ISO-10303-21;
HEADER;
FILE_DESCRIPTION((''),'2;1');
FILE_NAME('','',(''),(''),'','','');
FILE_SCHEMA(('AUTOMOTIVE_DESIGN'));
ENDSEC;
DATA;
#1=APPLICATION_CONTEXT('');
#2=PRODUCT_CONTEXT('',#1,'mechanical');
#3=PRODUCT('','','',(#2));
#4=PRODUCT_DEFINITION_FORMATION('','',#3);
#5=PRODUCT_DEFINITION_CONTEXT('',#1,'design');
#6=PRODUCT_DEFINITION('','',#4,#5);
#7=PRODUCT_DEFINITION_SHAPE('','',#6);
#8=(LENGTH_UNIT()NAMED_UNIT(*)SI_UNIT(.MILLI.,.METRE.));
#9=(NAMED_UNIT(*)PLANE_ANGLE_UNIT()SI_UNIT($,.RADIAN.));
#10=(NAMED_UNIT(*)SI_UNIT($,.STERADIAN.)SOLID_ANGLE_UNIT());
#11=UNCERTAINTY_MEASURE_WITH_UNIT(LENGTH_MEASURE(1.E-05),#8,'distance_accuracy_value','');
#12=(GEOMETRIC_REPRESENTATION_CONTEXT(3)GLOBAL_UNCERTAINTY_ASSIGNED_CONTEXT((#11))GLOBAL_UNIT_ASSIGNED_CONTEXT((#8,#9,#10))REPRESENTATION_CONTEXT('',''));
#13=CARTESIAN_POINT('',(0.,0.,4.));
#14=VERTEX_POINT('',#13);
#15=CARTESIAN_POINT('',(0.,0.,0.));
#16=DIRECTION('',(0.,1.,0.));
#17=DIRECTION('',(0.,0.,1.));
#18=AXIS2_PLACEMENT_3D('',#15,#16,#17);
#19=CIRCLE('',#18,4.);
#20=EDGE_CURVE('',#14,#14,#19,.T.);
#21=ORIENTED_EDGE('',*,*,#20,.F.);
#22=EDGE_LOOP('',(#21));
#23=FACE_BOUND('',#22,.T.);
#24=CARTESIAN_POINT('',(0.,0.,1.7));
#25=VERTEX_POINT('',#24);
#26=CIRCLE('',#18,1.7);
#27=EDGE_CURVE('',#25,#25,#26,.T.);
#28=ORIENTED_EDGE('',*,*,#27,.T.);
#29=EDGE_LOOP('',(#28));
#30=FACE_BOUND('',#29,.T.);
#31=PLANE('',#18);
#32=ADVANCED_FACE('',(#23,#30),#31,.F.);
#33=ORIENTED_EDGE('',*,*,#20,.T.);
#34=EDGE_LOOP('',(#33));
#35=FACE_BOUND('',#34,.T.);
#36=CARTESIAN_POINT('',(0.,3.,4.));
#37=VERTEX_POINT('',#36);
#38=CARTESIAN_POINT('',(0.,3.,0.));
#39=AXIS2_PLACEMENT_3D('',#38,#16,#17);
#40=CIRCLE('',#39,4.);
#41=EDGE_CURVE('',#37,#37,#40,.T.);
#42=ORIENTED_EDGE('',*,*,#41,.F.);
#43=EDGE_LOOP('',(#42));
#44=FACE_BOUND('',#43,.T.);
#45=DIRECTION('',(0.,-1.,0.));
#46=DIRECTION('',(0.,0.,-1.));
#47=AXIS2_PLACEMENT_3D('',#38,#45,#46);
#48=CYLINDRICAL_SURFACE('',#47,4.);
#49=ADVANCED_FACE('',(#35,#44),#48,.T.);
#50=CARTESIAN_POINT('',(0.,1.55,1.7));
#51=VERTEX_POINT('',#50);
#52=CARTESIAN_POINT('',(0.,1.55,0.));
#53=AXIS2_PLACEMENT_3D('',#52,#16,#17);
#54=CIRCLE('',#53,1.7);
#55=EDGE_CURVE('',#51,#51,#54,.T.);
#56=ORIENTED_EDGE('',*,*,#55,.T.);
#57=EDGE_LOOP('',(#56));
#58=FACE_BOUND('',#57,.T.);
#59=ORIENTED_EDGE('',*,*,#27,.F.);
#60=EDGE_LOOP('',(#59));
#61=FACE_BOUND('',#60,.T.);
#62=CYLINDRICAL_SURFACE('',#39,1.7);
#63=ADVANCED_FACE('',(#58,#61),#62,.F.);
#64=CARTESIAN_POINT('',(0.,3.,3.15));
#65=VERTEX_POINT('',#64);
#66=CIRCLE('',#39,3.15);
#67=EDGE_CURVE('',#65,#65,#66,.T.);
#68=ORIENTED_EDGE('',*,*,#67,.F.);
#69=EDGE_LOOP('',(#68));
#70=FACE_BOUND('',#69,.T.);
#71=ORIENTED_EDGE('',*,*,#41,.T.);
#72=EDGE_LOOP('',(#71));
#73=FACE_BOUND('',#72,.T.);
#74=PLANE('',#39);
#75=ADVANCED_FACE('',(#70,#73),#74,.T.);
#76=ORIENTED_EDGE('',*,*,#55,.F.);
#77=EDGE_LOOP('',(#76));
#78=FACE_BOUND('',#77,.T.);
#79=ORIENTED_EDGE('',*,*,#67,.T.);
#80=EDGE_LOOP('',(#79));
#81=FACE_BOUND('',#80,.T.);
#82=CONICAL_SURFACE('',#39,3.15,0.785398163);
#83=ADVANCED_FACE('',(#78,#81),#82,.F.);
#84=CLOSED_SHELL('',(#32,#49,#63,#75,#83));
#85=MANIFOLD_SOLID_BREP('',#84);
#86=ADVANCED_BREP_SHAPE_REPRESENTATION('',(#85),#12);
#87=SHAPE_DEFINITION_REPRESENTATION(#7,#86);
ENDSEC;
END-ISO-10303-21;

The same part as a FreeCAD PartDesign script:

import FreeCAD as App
import Part
import Sketcher

V = App.Vector
Q = App.Units.Quantity

doc = App.newDocument("Part")
params = doc.addObject("Spreadsheet::Sheet", "Params")
for row, (alias, value) in enumerate([
    ("sketch1_diameter", "8 mm"),
    ("pad1_length", "3 mm"),
    ("sketch2_width", "3 mm"),
    ("sketch2_height", "1.7 mm"),
    ("sketch2_width2", "1.55 mm"),
    ("groove_angle", "360 deg"),
], start=1):
    params.set(f"A{row}", alias)
    params.set(f"B{row}", "=" + value)
    params.setAlias(f"B{row}", alias)

body = doc.addObject("PartDesign::Body", "Body")

# Sketch on XZ plane
sketch1 = body.newObject("Sketcher::SketchObject", "Sketch")
sketch1.AttachmentSupport = (doc.getObject("XZ_Plane"), [""])
sketch1.MapMode = "FlatFace"
sketch1.addGeometry(Part.Circle(V(0, 0, 0), V(0, 0, 1), 4), False)
sketch1.addConstraint(Sketcher.Constraint("Coincident", 0, 3, -1, 1))
sketch1.addConstraint(Sketcher.Constraint("Diameter", 0, Q("8 mm")))
sketch1.setExpression("Constraints[1]", "Params.sketch1_diameter")
pad1 = body.newObject("PartDesign::Pad", "Pad")
pad1.Profile = sketch1
pad1.setExpression("Length", "Params.pad1_length")
pad1.Reversed = True

# Sketch on YZ plane
sketch2 = body.newObject("Sketcher::SketchObject", "Sketch001")
sketch2.AttachmentSupport = (doc.getObject("YZ_Plane"), [""])
sketch2.MapMode = "FlatFace"
sketch2.addGeometry(Part.LineSegment(V(0, 0, 0), V(3, 0, 0)), False)
sketch2.addGeometry(Part.LineSegment(V(3, 0, 0), V(3, 3.1, 0)), False)
sketch2.addGeometry(Part.LineSegment(V(3, 3.1, 0), V(1.6, 1.7, 0)), False)
sketch2.addGeometry(Part.LineSegment(V(1.6, 1.7, 0), V(0, 1.7, 0)), False)
sketch2.addGeometry(Part.LineSegment(V(0, 1.7, 0), V(0, 0, 0)), False)
sketch2.addConstraint(Sketcher.Constraint("Coincident", 0, 2, 1, 1))
sketch2.addConstraint(Sketcher.Constraint("Coincident", 1, 2, 2, 1))
sketch2.addConstraint(Sketcher.Constraint("Coincident", 2, 2, 3, 1))
sketch2.addConstraint(Sketcher.Constraint("Coincident", 3, 2, 4, 1))
sketch2.addConstraint(Sketcher.Constraint("Coincident", 4, 2, 0, 1))
sketch2.addConstraint(Sketcher.Constraint("Horizontal", 0))
sketch2.addConstraint(Sketcher.Constraint("Vertical", 1))
sketch2.addConstraint(Sketcher.Constraint("Horizontal", 3))
sketch2.addConstraint(Sketcher.Constraint("Vertical", 4))
sketch2.addConstraint(Sketcher.Constraint("Coincident", 4, 2, -1, 1))
sketch2.addConstraint(Sketcher.Constraint("DistanceX", 0, 1, 0, 2, Q("3 mm")))
sketch2.addConstraint(Sketcher.Constraint("Angle", 2, Q("-135 deg")))
sketch2.addConstraint(Sketcher.Constraint("DistanceY", 4, 2, 4, 1, Q("1.7 mm")))
sketch2.addConstraint(Sketcher.Constraint("DistanceX", 3, 2, 3, 1, Q("1.55 mm")))
sketch2.setExpression("Constraints[10]", "Params.sketch2_width")
sketch2.setExpression("Constraints[12]", "Params.sketch2_height")
sketch2.setExpression("Constraints[13]", "Params.sketch2_width2")
groove = body.newObject("PartDesign::Groove", "Groove")
groove.Profile = sketch2
groove.ReferenceAxis = (sketch2, ["H_Axis"])
groove.setExpression("Angle", "Params.groove_angle")

doc.recompute()
